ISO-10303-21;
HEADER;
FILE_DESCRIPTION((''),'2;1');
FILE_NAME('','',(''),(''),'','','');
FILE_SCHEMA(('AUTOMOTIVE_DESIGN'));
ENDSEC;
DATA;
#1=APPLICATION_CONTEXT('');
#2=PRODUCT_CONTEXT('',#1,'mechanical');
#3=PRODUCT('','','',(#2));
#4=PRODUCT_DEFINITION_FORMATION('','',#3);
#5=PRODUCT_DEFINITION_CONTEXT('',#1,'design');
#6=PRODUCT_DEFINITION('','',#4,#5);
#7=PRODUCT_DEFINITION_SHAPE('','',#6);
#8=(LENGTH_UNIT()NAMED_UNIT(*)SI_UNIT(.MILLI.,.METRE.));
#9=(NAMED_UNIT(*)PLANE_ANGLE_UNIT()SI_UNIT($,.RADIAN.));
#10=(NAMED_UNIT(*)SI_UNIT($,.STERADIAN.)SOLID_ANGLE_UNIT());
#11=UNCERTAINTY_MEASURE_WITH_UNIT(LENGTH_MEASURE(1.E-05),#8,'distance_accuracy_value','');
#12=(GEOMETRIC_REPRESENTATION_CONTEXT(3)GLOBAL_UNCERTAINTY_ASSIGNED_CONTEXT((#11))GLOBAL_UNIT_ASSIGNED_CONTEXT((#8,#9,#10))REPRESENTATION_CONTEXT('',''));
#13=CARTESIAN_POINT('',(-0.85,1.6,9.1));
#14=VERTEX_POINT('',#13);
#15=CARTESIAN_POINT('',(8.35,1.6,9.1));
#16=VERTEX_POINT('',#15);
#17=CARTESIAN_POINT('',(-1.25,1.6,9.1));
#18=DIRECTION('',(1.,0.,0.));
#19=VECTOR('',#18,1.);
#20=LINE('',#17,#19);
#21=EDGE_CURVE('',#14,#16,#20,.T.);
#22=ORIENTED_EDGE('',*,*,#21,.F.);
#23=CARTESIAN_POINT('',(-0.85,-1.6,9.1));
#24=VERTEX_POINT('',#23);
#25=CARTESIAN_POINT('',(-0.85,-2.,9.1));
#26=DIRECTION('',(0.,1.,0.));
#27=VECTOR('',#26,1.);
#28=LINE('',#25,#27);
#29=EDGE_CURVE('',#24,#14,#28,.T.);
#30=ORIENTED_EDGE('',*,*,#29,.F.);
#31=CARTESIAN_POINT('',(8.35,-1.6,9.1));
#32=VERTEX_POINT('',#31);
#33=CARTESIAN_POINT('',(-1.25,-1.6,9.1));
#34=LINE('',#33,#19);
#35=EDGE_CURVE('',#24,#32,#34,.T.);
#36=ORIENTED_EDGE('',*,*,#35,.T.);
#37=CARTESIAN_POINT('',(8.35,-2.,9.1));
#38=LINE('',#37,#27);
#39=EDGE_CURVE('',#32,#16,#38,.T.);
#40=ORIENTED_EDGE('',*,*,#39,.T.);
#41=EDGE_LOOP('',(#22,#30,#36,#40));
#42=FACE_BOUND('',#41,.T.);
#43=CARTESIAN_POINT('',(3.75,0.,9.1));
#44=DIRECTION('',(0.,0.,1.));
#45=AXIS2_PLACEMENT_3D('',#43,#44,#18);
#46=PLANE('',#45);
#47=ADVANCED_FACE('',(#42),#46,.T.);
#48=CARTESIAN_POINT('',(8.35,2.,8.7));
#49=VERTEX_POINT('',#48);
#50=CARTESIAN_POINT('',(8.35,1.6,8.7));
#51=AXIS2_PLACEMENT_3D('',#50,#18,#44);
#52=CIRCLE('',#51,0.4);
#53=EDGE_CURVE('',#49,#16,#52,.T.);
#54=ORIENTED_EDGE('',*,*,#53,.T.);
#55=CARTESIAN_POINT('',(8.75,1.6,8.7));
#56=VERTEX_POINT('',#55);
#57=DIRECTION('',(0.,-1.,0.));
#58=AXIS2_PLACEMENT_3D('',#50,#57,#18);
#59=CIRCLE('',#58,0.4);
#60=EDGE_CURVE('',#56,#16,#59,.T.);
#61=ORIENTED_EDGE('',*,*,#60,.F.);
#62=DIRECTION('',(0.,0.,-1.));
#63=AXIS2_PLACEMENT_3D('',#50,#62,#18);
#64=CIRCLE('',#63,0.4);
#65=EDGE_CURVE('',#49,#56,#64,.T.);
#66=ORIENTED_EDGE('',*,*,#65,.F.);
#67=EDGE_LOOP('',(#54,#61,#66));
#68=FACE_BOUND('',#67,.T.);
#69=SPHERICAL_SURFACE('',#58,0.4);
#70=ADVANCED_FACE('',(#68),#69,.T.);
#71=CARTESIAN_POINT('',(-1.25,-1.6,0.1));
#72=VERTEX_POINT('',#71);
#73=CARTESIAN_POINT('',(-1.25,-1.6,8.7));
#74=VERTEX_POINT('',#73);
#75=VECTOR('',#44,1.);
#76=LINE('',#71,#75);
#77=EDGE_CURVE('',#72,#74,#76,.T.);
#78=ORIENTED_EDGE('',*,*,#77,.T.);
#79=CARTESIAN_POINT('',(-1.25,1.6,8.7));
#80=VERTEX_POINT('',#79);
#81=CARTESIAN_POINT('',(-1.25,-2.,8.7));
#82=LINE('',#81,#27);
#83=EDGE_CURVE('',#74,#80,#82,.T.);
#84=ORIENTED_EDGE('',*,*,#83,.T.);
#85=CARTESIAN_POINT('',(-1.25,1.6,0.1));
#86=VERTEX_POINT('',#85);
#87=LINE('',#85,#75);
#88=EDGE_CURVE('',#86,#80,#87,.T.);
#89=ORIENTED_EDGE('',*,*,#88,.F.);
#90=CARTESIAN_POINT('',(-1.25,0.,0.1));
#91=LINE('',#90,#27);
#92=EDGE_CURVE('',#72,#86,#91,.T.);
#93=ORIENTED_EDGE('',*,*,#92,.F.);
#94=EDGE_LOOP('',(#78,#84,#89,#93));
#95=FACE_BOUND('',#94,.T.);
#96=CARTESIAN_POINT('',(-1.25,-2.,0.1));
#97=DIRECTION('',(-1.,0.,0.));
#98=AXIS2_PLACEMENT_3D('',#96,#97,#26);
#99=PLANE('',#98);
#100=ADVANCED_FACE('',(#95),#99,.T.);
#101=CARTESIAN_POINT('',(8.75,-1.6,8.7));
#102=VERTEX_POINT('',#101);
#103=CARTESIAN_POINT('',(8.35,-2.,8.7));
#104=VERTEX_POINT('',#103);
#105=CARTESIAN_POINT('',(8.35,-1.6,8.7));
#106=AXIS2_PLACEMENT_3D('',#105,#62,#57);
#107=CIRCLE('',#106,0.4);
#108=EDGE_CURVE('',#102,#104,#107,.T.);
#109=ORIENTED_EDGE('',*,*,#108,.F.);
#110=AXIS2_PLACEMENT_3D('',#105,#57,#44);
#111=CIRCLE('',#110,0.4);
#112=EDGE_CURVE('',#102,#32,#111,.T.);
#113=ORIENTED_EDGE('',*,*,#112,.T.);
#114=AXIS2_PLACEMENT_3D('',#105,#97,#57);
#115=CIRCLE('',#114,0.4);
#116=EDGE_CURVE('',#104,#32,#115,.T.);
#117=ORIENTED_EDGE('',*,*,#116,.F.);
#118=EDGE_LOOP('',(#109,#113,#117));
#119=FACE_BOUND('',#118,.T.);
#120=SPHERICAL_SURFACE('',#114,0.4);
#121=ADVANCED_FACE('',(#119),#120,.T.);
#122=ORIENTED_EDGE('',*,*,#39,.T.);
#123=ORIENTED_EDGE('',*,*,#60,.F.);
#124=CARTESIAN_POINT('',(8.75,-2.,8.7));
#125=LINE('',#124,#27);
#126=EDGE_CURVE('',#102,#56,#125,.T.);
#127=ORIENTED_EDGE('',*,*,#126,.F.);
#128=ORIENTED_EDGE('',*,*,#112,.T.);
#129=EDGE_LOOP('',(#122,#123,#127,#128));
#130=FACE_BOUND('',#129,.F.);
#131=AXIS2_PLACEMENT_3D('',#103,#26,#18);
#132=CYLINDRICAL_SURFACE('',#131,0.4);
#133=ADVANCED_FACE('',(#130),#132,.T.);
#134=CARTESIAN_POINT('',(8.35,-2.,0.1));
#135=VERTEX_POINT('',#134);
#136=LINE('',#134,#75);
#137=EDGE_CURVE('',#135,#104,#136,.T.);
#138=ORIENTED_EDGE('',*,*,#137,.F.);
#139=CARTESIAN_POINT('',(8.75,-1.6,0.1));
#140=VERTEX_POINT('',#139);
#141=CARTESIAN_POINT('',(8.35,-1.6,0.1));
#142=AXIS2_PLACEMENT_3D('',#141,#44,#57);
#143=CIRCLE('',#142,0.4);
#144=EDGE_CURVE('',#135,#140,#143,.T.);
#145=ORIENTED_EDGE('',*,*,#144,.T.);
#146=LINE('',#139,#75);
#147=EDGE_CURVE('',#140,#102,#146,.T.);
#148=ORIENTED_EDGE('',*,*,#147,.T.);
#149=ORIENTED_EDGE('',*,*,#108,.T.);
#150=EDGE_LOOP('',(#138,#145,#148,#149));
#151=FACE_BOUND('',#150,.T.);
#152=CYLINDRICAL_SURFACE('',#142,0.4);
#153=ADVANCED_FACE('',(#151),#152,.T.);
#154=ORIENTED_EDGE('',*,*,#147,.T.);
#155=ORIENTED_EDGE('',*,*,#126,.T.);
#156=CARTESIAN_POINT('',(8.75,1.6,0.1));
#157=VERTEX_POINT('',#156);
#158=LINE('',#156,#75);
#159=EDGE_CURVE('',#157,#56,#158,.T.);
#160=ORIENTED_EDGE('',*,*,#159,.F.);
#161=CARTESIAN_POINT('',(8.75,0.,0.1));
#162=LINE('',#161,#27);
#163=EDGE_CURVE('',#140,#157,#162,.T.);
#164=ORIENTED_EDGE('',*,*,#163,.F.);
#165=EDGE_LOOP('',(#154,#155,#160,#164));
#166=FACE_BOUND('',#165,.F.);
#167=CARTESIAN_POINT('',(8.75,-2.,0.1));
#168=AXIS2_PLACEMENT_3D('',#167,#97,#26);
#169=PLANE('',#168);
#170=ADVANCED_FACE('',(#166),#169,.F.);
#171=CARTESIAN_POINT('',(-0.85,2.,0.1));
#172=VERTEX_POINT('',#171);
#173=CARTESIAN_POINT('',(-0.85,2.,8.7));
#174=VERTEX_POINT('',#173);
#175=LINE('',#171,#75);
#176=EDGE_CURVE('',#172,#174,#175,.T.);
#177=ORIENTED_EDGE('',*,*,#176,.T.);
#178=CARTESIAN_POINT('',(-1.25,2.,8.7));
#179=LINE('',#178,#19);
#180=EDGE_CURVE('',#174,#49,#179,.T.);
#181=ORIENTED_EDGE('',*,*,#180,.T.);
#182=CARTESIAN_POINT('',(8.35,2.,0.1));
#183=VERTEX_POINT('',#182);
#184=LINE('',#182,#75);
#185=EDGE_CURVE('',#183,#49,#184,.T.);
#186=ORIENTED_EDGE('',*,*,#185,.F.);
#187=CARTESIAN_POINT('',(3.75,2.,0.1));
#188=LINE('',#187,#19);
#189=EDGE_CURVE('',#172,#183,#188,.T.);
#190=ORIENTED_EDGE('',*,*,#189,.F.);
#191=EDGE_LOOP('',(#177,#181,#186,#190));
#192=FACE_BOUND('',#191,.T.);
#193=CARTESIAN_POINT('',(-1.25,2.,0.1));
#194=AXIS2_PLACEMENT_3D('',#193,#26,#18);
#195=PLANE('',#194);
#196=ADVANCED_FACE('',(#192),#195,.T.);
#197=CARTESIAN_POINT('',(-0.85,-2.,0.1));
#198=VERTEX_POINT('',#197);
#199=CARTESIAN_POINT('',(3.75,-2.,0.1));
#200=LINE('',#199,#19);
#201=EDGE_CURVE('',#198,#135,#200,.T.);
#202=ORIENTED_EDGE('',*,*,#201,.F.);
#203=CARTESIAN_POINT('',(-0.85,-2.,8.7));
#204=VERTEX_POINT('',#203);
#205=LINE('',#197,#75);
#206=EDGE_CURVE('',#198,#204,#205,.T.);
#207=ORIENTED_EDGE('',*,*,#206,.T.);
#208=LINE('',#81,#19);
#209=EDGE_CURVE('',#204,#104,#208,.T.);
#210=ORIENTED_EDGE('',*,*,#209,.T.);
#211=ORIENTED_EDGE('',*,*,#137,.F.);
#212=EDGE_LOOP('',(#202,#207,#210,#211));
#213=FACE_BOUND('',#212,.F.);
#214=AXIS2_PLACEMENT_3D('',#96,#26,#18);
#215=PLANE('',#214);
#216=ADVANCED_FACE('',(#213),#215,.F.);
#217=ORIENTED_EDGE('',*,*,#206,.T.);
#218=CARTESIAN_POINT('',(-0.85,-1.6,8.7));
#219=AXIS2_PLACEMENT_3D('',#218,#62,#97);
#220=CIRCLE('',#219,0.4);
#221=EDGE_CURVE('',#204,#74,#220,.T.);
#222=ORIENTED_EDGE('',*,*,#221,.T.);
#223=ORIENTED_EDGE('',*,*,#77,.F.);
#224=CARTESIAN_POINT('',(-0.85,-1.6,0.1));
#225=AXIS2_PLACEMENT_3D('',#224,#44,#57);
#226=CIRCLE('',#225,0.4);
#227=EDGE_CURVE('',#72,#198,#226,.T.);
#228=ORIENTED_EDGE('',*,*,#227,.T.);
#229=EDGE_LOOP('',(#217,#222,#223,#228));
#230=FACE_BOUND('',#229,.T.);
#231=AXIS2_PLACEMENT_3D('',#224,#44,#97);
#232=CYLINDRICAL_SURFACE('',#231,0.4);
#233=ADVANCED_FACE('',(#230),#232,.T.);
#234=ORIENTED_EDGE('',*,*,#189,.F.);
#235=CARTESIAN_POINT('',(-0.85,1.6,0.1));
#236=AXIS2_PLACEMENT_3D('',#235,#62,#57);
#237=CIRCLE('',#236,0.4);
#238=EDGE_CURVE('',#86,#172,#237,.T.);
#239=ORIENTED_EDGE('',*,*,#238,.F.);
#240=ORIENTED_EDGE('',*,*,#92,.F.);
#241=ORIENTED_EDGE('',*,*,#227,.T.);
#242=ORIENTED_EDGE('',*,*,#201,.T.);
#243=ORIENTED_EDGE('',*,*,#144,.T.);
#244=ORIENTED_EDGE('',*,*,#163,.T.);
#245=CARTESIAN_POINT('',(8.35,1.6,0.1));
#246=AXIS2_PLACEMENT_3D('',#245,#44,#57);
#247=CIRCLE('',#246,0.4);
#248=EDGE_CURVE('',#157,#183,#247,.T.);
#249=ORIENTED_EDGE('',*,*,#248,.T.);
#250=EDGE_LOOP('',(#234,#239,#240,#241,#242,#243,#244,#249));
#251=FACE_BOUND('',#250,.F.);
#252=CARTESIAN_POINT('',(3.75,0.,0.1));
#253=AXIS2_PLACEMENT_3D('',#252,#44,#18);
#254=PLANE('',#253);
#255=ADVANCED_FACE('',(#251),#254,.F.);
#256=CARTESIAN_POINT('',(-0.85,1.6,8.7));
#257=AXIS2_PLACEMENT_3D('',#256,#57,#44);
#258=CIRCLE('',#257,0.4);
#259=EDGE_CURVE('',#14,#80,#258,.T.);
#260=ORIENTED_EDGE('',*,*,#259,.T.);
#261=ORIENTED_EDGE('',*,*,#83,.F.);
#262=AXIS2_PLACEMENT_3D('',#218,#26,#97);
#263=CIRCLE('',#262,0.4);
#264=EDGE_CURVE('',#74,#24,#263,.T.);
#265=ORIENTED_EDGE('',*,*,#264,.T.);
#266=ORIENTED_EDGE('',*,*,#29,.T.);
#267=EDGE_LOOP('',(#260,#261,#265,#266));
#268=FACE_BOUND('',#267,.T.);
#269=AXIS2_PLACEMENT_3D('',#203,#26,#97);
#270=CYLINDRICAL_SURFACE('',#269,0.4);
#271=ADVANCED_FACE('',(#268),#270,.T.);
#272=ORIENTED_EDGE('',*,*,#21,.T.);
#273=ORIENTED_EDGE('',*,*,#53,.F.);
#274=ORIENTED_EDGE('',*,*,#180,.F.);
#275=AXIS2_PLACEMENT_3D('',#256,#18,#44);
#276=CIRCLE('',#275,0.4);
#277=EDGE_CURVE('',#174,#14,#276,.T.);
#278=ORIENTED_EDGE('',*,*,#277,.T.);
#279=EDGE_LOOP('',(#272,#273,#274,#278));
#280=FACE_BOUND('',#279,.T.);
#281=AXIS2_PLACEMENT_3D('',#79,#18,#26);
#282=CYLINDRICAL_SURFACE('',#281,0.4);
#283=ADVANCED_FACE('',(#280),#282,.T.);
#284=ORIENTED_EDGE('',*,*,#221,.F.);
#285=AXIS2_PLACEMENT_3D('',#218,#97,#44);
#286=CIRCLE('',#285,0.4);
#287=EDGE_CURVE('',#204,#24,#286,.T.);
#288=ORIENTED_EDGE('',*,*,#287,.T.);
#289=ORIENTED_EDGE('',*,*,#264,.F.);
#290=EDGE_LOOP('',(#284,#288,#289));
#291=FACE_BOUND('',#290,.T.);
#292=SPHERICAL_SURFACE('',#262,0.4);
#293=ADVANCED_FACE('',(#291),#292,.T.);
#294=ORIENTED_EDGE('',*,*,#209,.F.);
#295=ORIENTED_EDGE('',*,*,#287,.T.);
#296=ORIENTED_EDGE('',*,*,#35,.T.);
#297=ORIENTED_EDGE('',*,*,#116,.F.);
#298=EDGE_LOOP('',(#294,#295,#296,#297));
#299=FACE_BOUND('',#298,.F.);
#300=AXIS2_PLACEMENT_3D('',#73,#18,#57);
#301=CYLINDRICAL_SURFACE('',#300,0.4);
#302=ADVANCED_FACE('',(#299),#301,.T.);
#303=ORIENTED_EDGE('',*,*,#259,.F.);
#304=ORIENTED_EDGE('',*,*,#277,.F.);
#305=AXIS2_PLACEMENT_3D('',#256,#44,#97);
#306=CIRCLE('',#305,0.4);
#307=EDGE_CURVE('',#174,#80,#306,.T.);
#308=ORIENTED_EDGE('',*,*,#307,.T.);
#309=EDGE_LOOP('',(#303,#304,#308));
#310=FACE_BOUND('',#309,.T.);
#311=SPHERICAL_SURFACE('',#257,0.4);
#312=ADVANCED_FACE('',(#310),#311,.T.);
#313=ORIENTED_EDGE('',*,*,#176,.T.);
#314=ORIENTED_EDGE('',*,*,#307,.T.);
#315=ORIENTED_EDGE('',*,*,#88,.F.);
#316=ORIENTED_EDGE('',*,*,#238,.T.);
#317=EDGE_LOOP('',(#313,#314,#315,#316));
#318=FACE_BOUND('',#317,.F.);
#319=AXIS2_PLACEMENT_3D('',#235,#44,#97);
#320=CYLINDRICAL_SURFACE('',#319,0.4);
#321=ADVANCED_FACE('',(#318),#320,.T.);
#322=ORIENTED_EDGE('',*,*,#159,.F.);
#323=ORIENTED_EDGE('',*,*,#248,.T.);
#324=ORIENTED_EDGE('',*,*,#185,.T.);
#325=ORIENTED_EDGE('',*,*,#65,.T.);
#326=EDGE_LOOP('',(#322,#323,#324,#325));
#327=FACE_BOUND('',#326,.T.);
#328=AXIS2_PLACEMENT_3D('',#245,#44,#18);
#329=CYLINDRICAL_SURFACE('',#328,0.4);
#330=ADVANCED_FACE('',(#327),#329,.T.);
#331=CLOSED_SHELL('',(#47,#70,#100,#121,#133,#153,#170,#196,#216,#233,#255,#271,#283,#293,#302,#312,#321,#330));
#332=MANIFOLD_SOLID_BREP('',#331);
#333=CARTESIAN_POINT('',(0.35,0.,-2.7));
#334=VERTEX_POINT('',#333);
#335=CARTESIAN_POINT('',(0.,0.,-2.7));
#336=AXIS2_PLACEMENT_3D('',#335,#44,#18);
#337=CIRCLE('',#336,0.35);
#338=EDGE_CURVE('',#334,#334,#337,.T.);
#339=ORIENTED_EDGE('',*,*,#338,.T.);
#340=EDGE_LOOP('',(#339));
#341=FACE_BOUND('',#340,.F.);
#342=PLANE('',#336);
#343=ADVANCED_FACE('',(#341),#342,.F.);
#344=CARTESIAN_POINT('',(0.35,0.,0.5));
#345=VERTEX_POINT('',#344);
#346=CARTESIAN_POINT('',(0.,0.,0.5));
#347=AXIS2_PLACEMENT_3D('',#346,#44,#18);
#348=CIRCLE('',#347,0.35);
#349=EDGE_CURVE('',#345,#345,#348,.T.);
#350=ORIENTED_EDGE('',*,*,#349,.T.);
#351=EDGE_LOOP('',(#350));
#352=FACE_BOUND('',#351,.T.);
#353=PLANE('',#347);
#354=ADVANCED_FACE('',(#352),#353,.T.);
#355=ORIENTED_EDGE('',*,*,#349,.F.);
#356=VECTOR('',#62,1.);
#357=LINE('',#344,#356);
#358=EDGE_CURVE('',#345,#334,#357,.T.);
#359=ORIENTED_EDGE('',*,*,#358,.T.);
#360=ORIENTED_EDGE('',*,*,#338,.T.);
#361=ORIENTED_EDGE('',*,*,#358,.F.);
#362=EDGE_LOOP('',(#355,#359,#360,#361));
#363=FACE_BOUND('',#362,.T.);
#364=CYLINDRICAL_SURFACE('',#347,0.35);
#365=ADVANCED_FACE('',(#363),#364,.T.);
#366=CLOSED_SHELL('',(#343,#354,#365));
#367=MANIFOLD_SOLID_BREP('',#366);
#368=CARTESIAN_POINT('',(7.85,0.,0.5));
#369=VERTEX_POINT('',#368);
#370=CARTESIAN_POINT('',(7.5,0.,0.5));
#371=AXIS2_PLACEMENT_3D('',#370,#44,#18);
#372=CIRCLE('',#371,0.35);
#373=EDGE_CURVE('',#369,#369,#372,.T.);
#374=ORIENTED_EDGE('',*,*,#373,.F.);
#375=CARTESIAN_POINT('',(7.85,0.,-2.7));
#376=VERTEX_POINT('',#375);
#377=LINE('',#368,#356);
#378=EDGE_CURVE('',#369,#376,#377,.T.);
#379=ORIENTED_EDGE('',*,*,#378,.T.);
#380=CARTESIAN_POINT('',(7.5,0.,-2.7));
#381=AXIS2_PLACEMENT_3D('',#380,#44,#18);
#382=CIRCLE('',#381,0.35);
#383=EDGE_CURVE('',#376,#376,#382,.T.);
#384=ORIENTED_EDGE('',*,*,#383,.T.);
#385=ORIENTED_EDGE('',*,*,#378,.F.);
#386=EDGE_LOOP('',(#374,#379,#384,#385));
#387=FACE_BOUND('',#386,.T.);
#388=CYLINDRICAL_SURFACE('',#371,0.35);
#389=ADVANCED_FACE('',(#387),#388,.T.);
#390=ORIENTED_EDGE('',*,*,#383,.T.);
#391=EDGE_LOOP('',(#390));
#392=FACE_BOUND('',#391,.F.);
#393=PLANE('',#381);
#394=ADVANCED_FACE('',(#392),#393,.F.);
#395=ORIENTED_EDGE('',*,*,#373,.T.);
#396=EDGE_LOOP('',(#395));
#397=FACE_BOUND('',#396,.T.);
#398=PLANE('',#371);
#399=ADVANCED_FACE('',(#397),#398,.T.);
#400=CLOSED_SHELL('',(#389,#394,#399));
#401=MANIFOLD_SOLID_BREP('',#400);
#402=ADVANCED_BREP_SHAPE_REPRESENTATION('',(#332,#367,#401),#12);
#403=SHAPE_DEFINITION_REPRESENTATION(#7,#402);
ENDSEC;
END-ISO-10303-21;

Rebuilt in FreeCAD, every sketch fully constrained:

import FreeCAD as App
import Part
import Sketcher


def edges_at(feature, points):
    """Names of the edges that pass closest to the given points."""
    edges = feature.Shape.Edges
    near = lambda p: min(range(len(edges)), key=lambda i: edges[i].distToShape(Part.Vertex(*p))[0])
    return sorted({f"Edge{near(p) + 1}" for p in points})


def add_polygon(sketch, points):
    """Adds a closed chain of lines whose ends are joined by coincident constraints."""
    first, n = sketch.GeometryCount, len(points)
    for a, b in zip(points, points[1:] + points[:1]):
        sketch.addGeometry(Part.LineSegment(App.Vector(*a, 0), App.Vector(*b, 0)), False)
    for i in range(n):
        sketch.addConstraint(Sketcher.Constraint("Coincident", first + i, 2, first + (i + 1) % n, 1))

doc = App.newDocument("Part")
body = doc.addObject("PartDesign::Body", "Body")

# Sketch on XY plane
sketch1 = doc.addObject("Sketcher::SketchObject", "Sketch")
body.addObject(sketch1)
sketch1.AttachmentSupport = (doc.XY_Plane, [""])
sketch1.MapMode = "FlatFace"
sketch1.AttachmentOffset = App.Placement(App.Vector(0, 0, 0.1), App.Rotation())
add_polygon(sketch1, [(-1.2, 2), (-1.2, -2), (8.8, -2), (8.8, 2)])  # lines 0-3
sketch1.addConstraint([
    Sketcher.Constraint("Vertical", 0),
    Sketcher.Constraint("Horizontal", 1),
    Sketcher.Constraint("Vertical", 2),
    Sketcher.Constraint("Horizontal", 3),
    Sketcher.Constraint("DistanceX", 1, 1, 1, 2, 10.0),
    Sketcher.Constraint("DistanceY", 0, 2, 0, 1, 4.0),
    Sketcher.Constraint("DistanceY", 0, 2, -1, 1, 2.0),
    Sketcher.Constraint("DistanceX", 0, 2, -1, 1, 1.25),
])
pad1 = doc.addObject("PartDesign::Pad", "Pad")
body.addObject(pad1)
pad1.Profile = sketch1
pad1.Length = 9
doc.recompute()

fillet = doc.addObject("PartDesign::Fillet", "Fillet")
body.addObject(fillet)
fillet.Base = (pad1, edges_at(pad1, [
    (-1.25, 0, 9.1),
    (-1.25, -2, 4.6),
    (3.75, -2, 9.1),
    (8.75, -2, 4.6),
    (8.75, 0, 9.1),
    (8.75, 2, 4.6),
    (3.75, 2, 9.1),
    (-1.25, 2, 4.6),
]))
fillet.Radius = 0.4
body2 = doc.addObject("PartDesign::Body", "Body001")
body2.AllowCompound = True

# Sketch on XY plane
sketch2 = doc.addObject("Sketcher::SketchObject", "Sketch001")
body2.addObject(sketch2)
sketch2.AttachmentSupport = (doc.getObject("XY_Plane001"), [""])
sketch2.MapMode = "FlatFace"
sketch2.AttachmentOffset = App.Placement(App.Vector(0, 0, 0.5), App.Rotation())
sketch2.addGeometry([
    Part.Circle(App.Vector(0, 0, 0), App.Vector(0, 0, 1), 0.35),
    Part.Circle(App.Vector(7.5, 0, 0), App.Vector(0, 0, 1), 0.35),
], False)
sketch2.addConstraint([
    Sketcher.Constraint("Coincident", 0, 3, -1, 1),
    Sketcher.Constraint("Equal", 0, 1),
    Sketcher.Constraint("PointOnObject", 1, 3, -1),
    Sketcher.Constraint("Diameter", 0, 0.7),
    Sketcher.Constraint("DistanceX", -1, 1, 1, 3, 7.5),
])
pad2 = doc.addObject("PartDesign::Pad", "Pad001")
body2.addObject(pad2)
pad2.Profile = sketch2
pad2.Length = 3.2
pad2.Reversed = True

doc.recompute()
